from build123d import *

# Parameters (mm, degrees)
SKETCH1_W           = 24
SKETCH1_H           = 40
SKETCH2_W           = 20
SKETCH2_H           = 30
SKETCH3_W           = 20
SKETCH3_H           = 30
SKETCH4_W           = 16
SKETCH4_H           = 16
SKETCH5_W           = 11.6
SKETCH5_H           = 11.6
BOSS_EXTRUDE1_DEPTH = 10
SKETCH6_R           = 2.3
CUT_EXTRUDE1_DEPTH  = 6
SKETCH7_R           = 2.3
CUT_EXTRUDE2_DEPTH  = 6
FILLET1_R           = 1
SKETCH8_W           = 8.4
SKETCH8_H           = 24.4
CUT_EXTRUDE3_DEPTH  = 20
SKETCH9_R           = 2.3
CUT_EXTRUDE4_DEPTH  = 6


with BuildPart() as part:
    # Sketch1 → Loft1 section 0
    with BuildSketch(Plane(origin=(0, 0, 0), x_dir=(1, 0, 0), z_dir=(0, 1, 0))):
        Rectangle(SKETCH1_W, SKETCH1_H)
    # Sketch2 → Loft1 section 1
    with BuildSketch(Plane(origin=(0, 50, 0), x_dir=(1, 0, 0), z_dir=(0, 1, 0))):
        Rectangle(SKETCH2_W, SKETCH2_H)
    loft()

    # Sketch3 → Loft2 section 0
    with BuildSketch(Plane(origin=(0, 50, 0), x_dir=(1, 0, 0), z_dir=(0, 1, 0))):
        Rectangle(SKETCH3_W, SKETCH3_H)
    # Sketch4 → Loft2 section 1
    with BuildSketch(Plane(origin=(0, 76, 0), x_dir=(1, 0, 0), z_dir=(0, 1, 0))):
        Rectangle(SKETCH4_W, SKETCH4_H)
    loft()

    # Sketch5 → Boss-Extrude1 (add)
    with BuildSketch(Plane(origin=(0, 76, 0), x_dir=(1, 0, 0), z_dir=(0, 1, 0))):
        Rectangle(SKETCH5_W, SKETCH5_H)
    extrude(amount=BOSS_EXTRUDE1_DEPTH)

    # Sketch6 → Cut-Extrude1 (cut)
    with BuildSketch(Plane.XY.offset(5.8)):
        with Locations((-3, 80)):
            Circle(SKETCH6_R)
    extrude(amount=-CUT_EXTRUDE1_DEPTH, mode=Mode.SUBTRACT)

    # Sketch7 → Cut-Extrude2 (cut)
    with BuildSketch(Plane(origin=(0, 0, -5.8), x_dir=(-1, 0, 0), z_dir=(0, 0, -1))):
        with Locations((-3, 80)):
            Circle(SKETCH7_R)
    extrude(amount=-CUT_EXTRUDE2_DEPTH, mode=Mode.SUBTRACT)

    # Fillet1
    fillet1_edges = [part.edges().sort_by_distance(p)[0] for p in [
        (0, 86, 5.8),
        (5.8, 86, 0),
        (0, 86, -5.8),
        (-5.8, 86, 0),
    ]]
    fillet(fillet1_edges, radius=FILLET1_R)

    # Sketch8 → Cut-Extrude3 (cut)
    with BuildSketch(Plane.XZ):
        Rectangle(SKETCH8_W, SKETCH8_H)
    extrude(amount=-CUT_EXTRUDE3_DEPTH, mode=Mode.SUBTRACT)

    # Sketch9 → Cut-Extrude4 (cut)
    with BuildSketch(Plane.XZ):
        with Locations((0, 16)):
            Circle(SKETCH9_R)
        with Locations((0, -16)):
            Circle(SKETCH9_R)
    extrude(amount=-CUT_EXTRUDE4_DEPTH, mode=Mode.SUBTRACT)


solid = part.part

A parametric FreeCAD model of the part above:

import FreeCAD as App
import Part
import Sketcher
from FreeCAD import Vector


def edges_at(feature, points):
    """Names of the edges that pass closest to the given points."""
    edges = feature.Shape.Edges
    near = lambda p: min(range(len(edges)), key=lambda i: edges[i].distToShape(Part.Vertex(*p))[0])
    return sorted({f"Edge{near(p) + 1}" for p in points})

doc = App.newDocument("Part")
params = doc.addObject("Spreadsheet::Sheet", "Params")
for row, (alias, value) in enumerate([
    ("sketch1_width", "24 mm"),
    ("sketch1_height", "40 mm"),
    ("sketch2_width", "20 mm"),
    ("sketch2_height", "30 mm"),
    ("sketch3_width", "20 mm"),
    ("sketch3_height", "30 mm"),
    ("sketch4_width", "16 mm"),
    ("sketch5_width", "11.6 mm"),
    ("pad1_length", "10 mm"),
    ("sketch6_diameter", "4.6 mm"),
    ("pocket1_length", "6 mm"),
    ("sketch7_diameter", "4.6 mm"),
    ("pocket2_length", "6 mm"),
    ("fillet_radius", "1 mm"),
    ("sketch8_width", "8.4 mm"),
    ("sketch8_height", "24.4 mm"),
    ("pocket3_length", "20 mm"),
    ("sketch9_diameter", "4.6 mm"),
    ("pocket4_length", "6 mm"),
], start=1):
    params.set(f"A{row}", alias)
    params.set(f"B{row}", "=" + value)
    params.setAlias(f"B{row}", alias)

body = doc.addObject("PartDesign::Body", "Body")

# Sketch on XZ plane
sketch1 = body.newObject("Sketcher::SketchObject", "Sketch")
sketch1.AttachmentSupport = (doc.getObject("XZ_Plane"), [""])
sketch1.MapMode = "FlatFace"
sketch1.addGeometry([
    Part.LineSegment(Vector(-12, -20, 0), Vector(-12, 20, 0)),
    Part.LineSegment(Vector(-12, 20, 0), Vector(12, 20, 0)),
    Part.LineSegment(Vector(12, 20, 0), Vector(12, -20, 0)),
    Part.LineSegment(Vector(12, -20, 0), Vector(-12, -20, 0)),
], False)
sketch1.addConstraint([
    Sketcher.Constraint("Coincident", 0, 2, 1, 1),
    Sketcher.Constraint("Coincident", 1, 2, 2, 1),
    Sketcher.Constraint("Coincident", 2, 2, 3, 1),
    Sketcher.Constraint("Coincident", 3, 2, 0, 1),
    Sketcher.Constraint("Vertical", 0),
    Sketcher.Constraint("Horizontal", 1),
    Sketcher.Constraint("Vertical", 2),
    Sketcher.Constraint("Horizontal", 3),
    Sketcher.Constraint("Symmetric", 0, 2, 2, 2, -1, 1),
    Sketcher.Constraint("DistanceX", 1, 1, 1, 2, 24.0),
    Sketcher.Constraint("DistanceY", 0, 1, 0, 2, 40.0),
])
sketch1.setExpression("Constraints[9]", "Params.sketch1_width")
sketch1.setExpression("Constraints[10]", "Params.sketch1_height")

# Sketch on XZ plane
sketch2 = body.newObject("Sketcher::SketchObject", "Sketch001")
sketch2.AttachmentSupport = (doc.getObject("XZ_Plane"), [""])
sketch2.MapMode = "FlatFace"
sketch2.AttachmentOffset = App.Placement(Vector(0, 0, -50), App.Rotation())
sketch2.addGeometry([
    Part.LineSegment(Vector(-10, -15, 0), Vector(-10, 15, 0)),
    Part.LineSegment(Vector(-10, 15, 0), Vector(10, 15, 0)),
    Part.LineSegment(Vector(10, 15, 0), Vector(10, -15, 0)),
    Part.LineSegment(Vector(10, -15, 0), Vector(-10, -15, 0)),
], False)
sketch2.addConstraint([
    Sketcher.Constraint("Coincident", 0, 2, 1, 1),
    Sketcher.Constraint("Coincident", 1, 2, 2, 1),
    Sketcher.Constraint("Coincident", 2, 2, 3, 1),
    Sketcher.Constraint("Coincident", 3, 2, 0, 1),
    Sketcher.Constraint("Vertical", 0),
    Sketcher.Constraint("Horizontal", 1),
    Sketcher.Constraint("Vertical", 2),
    Sketcher.Constraint("Horizontal", 3),
    Sketcher.Constraint("Symmetric", 0, 2, 2, 2, -1, 1),
    Sketcher.Constraint("DistanceX", 1, 1, 1, 2, 20.0),
    Sketcher.Constraint("DistanceY", 0, 1, 0, 2, 30.0),
])
sketch2.setExpression("Constraints[9]", "Params.sketch2_width")
sketch2.setExpression("Constraints[10]", "Params.sketch2_height")

additiveloft = body.newObject("PartDesign::AdditiveLoft", "AdditiveLoft")
additiveloft.Profile = sketch1
additiveloft.Sections = [sketch2]

# Sketch on XZ plane
sketch3 = body.newObject("Sketcher::SketchObject", "Sketch002")
sketch3.AttachmentSupport = (doc.getObject("XZ_Plane"), [""])
sketch3.MapMode = "FlatFace"
sketch3.AttachmentOffset = App.Placement(Vector(0, 0, -50), App.Rotation())
sketch3.addGeometry([
    Part.LineSegment(Vector(-10, -15, 0), Vector(-10, 15, 0)),
    Part.LineSegment(Vector(-10, 15, 0), Vector(10, 15, 0)),
    Part.LineSegment(Vector(10, 15, 0), Vector(10, -15, 0)),
    Part.LineSegment(Vector(10, -15, 0), Vector(-10, -15, 0)),
], False)
sketch3.addConstraint([
    Sketcher.Constraint("Coincident", 0, 2, 1, 1),
    Sketcher.Constraint("Coincident", 1, 2, 2, 1),
    Sketcher.Constraint("Coincident", 2, 2, 3, 1),
    Sketcher.Constraint("Coincident", 3, 2, 0, 1),
    Sketcher.Constraint("Vertical", 0),
    Sketcher.Constraint("Horizontal", 1),
    Sketcher.Constraint("Vertical", 2),
    Sketcher.Constraint("Horizontal", 3),
    Sketcher.Constraint("Symmetric", 0, 2, 2, 2, -1, 1),
    Sketcher.Constraint("DistanceX", 1, 1, 1, 2, 20.0),
    Sketcher.Constraint("DistanceY", 0, 1, 0, 2, 30.0),
])
sketch3.setExpression("Constraints[9]", "Params.sketch3_width")
sketch3.setExpression("Constraints[10]", "Params.sketch3_height")

# Sketch on XZ plane
sketch4 = body.newObject("Sketcher::SketchObject", "Sketch003")
sketch4.AttachmentSupport = (doc.getObject("XZ_Plane"), [""])
sketch4.MapMode = "FlatFace"
sketch4.AttachmentOffset = App.Placement(Vector(0, 0, -76), App.Rotation())
sketch4.addGeometry([
    Part.LineSegment(Vector(-8, -8, 0), Vector(-8, 8, 0)),
    Part.LineSegment(Vector(-8, 8, 0), Vector(8, 8, 0)),
    Part.LineSegment(Vector(8, 8, 0), Vector(8, -8, 0)),
    Part.LineSegment(Vector(8, -8, 0), Vector(-8, -8, 0)),
], False)
sketch4.addConstraint([
    Sketcher.Constraint("Coincident", 0, 2, 1, 1),
    Sketcher.Constraint("Coincident", 1, 2, 2, 1),
    Sketcher.Constraint("Coincident", 2, 2, 3, 1),
    Sketcher.Constraint("Coincident", 3, 2, 0, 1),
    Sketcher.Constraint("Vertical", 0),
    Sketcher.Constraint("Horizontal", 1),
    Sketcher.Constraint("Vertical", 2),
    Sketcher.Constraint("Horizontal", 3),
    Sketcher.Constraint("Symmetric", 0, 2, 2, 2, -1, 1),
    Sketcher.Constraint("Equal", 3, 0),
    Sketcher.Constraint("DistanceX", 1, 1, 1, 2, 16.0),
])
sketch4.setExpression("Constraints[10]", "Params.sketch4_width")

additiveloft2 = body.newObject("PartDesign::AdditiveLoft", "AdditiveLoft001")
additiveloft2.Profile = sketch3
additiveloft2.Sections = [sketch4]

# Sketch on XZ plane
sketch5 = body.newObject("Sketcher::SketchObject", "Sketch004")
sketch5.AttachmentSupport = (doc.getObject("XZ_Plane"), [""])
sketch5.MapMode = "FlatFace"
sketch5.AttachmentOffset = App.Placement(Vector(0, 0, -76), App.Rotation())
sketch5.addGeometry([
    Part.LineSegment(Vector(-6, -6, 0), Vector(-6, 6, 0)),
    Part.LineSegment(Vector(-6, 6, 0), Vector(6, 6, 0)),
    Part.LineSegment(Vector(6, 6, 0), Vector(6, -6, 0)),
    Part.LineSegment(Vector(6, -6, 0), Vector(-6, -6, 0)),
], False)
sketch5.addConstraint([
    Sketcher.Constraint("Coincident", 0, 2, 1, 1),
    Sketcher.Constraint("Coincident", 1, 2, 2, 1),
    Sketcher.Constraint("Coincident", 2, 2, 3, 1),
    Sketcher.Constraint("Coincident", 3, 2, 0, 1),
    Sketcher.Constraint("Vertical", 0),
    Sketcher.Constraint("Horizontal", 1),
    Sketcher.Constraint("Vertical", 2),
    Sketcher.Constraint("Horizontal", 3),
    Sketcher.Constraint("Symmetric", 0, 2, 2, 2, -1, 1),
    Sketcher.Constraint("Equal", 3, 0),
    Sketcher.Constraint("DistanceX", 1, 1, 1, 2, 11.6),
])
sketch5.setExpression("Constraints[10]", "Params.sketch5_width")
pad1 = body.newObject("PartDesign::Pad", "Pad")
pad1.Profile = sketch5
pad1.setExpression("Length", "Params.pad1_length")
pad1.Reversed = True

# Sketch on XY plane
sketch6 = body.newObject("Sketcher::SketchObject", "Sketch005")
sketch6.AttachmentSupport = (doc.getObject("XY_Plane"), [""])
sketch6.MapMode = "FlatFace"
sketch6.AttachmentOffset = App.Placement(Vector(0, 0, 5.8), App.Rotation())
sketch6.addGeometry(Part.Circle(Vector(-3, 80, 0), Vector(0, 0, 1), 2.3), False)
sketch6.addConstraint([
    Sketcher.Constraint("Diameter", 0, 4.6),
    Sketcher.Constraint("DistanceX", 0, 3, -1, 1, 3.0),
    Sketcher.Constraint("DistanceY", -1, 1, 0, 3, 80.0),
])
sketch6.setExpression("Constraints[0]", "Params.sketch6_diameter")
pocket1 = body.newObject("PartDesign::Pocket", "Pocket")
pocket1.Profile = sketch6
pocket1.setExpression("Length", "Params.pocket1_length")

# Sketch on XY plane
sketch7 = body.newObject("Sketcher::SketchObject", "Sketch006")
sketch7.AttachmentSupport = (doc.getObject("XY_Plane"), [""])
sketch7.MapMode = "FlatFace"
sketch7.AttachmentOffset = App.Placement(Vector(0, 0, -5.8), App.Rotation())
sketch7.addGeometry(Part.Circle(Vector(3, 80, 0), Vector(0, 0, 1), 2.3), False)
sketch7.addConstraint([
    Sketcher.Constraint("Diameter", 0, 4.6),
    Sketcher.Constraint("DistanceX", -1, 1, 0, 3, 3.0),
    Sketcher.Constraint("DistanceY", -1, 1, 0, 3, 80.0),
])
sketch7.setExpression("Constraints[0]", "Params.sketch7_diameter")
pocket2 = body.newObject("PartDesign::Pocket", "Pocket001")
pocket2.Profile = sketch7
pocket2.setExpression("Length", "Params.pocket2_length")
pocket2.Reversed = True
doc.recompute()

fillet = body.newObject("PartDesign::Fillet", "Fillet")
fillet.Base = (pocket2, edges_at(pocket2, [
    (0, 86, 5.8),
    (5.8, 86, 0),
    (0, 86, -5.8),
    (-5.8, 86, 0),
]))
fillet.setExpression("Radius", "Params.fillet_radius")

# Sketch on XZ plane
sketch8 = body.newObject("Sketcher::SketchObject", "Sketch007")
sketch8.AttachmentSupport = (doc.getObject("XZ_Plane"), [""])
sketch8.MapMode = "FlatFace"
sketch8.addGeometry([
    Part.LineSegment(Vector(-4, 12, 0), Vector(-4, -12, 0)),
    Part.LineSegment(Vector(-4, -12, 0), Vector(4, -12, 0)),
    Part.LineSegment(Vector(4, -12, 0), Vector(4, 12, 0)),
    Part.LineSegment(Vector(4, 12, 0), Vector(-4, 12, 0)),
], False)
sketch8.addConstraint([
    Sketcher.Constraint("Coincident", 0, 2, 1, 1),
    Sketcher.Constraint("Coincident", 1, 2, 2, 1),
    Sketcher.Constraint("Coincident", 2, 2, 3, 1),
    Sketcher.Constraint("Coincident", 3, 2, 0, 1),
    Sketcher.Constraint("Vertical", 0),
    Sketcher.Constraint("Horizontal", 1),
    Sketcher.Constraint("Vertical", 2),
    Sketcher.Constraint("Horizontal", 3),
    Sketcher.Constraint("Symmetric", 0, 2, 2, 2, -1, 1),
    Sketcher.Constraint("DistanceX", 1, 1, 1, 2, 8.4),
    Sketcher.Constraint("DistanceY", 0, 2, 0, 1, 24.4),
])
sketch8.setExpression("Constraints[9]", "Params.sketch8_width")
sketch8.setExpression("Constraints[10]", "Params.sketch8_height")
pocket3 = body.newObject("PartDesign::Pocket", "Pocket002")
pocket3.Profile = sketch8
pocket3.setExpression("Length", "Params.pocket3_length")

# Sketch on XZ plane
sketch9 = body.newObject("Sketcher::SketchObject", "Sketch008")
sketch9.AttachmentSupport = (doc.getObject("XZ_Plane"), [""])
sketch9.MapMode = "FlatFace"
sketch9.addGeometry([
    Part.Circle(Vector(0, 16, 0), Vector(0, 0, 1), 2.3),
    Part.Circle(Vector(0, -16, 0), Vector(0, 0, 1), 2.3),
], False)
sketch9.addConstraint([
    Sketcher.Constraint("Equal", 0, 1),
    Sketcher.Constraint("Symmetric", 0, 3, 1, 3, -1, 1),
    Sketcher.Constraint("PointOnObject", 0, 3, -2),
    Sketcher.Constraint("Diameter", 0, 4.6),
    Sketcher.Constraint("DistanceY", -1, 1, 0, 3, 16.0),
])
sketch9.setExpression("Constraints[3]", "Params.sketch9_diameter")
pocket4 = body.newObject("PartDesign::Pocket", "Pocket003")
pocket4.Profile = sketch9
pocket4.setExpression("Length", "Params.pocket4_length")

doc.recompute()
